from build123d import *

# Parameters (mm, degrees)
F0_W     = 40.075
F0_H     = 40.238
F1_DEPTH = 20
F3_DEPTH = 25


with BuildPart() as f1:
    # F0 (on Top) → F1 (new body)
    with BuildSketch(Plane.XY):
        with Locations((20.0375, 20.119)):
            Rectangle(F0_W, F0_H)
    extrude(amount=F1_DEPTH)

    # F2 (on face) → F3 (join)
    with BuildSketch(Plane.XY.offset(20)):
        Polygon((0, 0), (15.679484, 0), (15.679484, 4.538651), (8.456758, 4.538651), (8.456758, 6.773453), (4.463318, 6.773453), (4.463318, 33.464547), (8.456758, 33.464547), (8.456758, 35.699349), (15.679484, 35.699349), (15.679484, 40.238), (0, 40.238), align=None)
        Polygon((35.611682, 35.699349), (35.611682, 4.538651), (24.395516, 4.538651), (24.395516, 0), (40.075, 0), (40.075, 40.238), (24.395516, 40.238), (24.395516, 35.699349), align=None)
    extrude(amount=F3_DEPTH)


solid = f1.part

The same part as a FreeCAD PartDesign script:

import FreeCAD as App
import Part
import Sketcher
Q = App.Units.Quantity


def add_polygon(sketch, points):
    """Adds a closed chain of lines whose ends are joined by coincident constraints."""
    first, n = sketch.GeometryCount, len(points)
    for a, b in zip(points, points[1:] + points[:1]):
        sketch.addGeometry(Part.LineSegment(App.Vector(*a, 0), App.Vector(*b, 0)), False)
    for i in range(n):
        sketch.addConstraint(Sketcher.Constraint("Coincident", first + i, 2, first + (i + 1) % n, 1))

doc = App.newDocument("Part")
body = doc.addObject("PartDesign::Body", "Body")

# Sketch on XY plane
sketch1 = body.newObject("Sketcher::SketchObject", "Sketch")
sketch1.AttachmentSupport = (doc.getObject("XY_Plane"), [""])
sketch1.MapMode = "FlatFace"
add_polygon(sketch1, [(0, 40), (0, 0), (40, 0), (40, 40)])  # lines 0-3
sketch1.addConstraint(Sketcher.Constraint("Vertical", 0))
sketch1.addConstraint(Sketcher.Constraint("Horizontal", 1))
sketch1.addConstraint(Sketcher.Constraint("Vertical", 2))
sketch1.addConstraint(Sketcher.Constraint("Horizontal", 3))
sketch1.addConstraint(Sketcher.Constraint("Coincident", 0, 2, -1, 1))
sketch1.addConstraint(Sketcher.Constraint("DistanceX", 1, 1, 1, 2, Q("40.075 mm")))
sketch1.addConstraint(Sketcher.Constraint("DistanceY", 0, 2, 0, 1, Q("40.238 mm")))
pad1 = body.newObject("PartDesign::Pad", "Pad")
pad1.Profile = sketch1
pad1.Length = 20

# Sketch on XY plane
sketch2 = body.newObject("Sketcher::SketchObject", "Sketch001")
sketch2.AttachmentSupport = (doc.getObject("XY_Plane"), [""])
sketch2.MapMode = "FlatFace"
sketch2.AttachmentOffset = App.Placement(App.Vector(0, 0, 20), App.Rotation())
add_polygon(sketch2, [(0, 0), (15.7, 0), (15.7, 4.5), (8.5, 4.5), (8.5, 6.8), (4.5, 6.8), (4.5, 33.5), (8.5, 33.5), (8.5, 35.7), (15.7, 35.7), (15.7, 40.2), (0, 40.2)])  # lines 0-11
add_polygon(sketch2, [(35.6, 35.7), (35.6, 4.5), (24.4, 4.5), (24.4, 0), (40.1, 0), (40.1, 40.2), (24.4, 40.2), (24.4, 35.7)])  # lines 12-19
sketch2.addConstraint(Sketcher.Constraint("Horizontal", 0))
sketch2.addConstraint(Sketcher.Constraint("Vertical", 1))
sketch2.addConstraint(Sketcher.Constraint("Horizontal", 2))
sketch2.addConstraint(Sketcher.Constraint("Vertical", 3))
sketch2.addConstraint(Sketcher.Constraint("Horizontal", 4))
sketch2.addConstraint(Sketcher.Constraint("Vertical", 5))
sketch2.addConstraint(Sketcher.Constraint("Horizontal", 6))
sketch2.addConstraint(Sketcher.Constraint("Vertical", 7))
sketch2.addConstraint(Sketcher.Constraint("Horizontal", 8))
sketch2.addConstraint(Sketcher.Constraint("Vertical", 9))
sketch2.addConstraint(Sketcher.Constraint("Horizontal", 10))
sketch2.addConstraint(Sketcher.Constraint("Vertical", 11))
sketch2.addConstraint(Sketcher.Constraint("Vertical", 12))
sketch2.addConstraint(Sketcher.Constraint("Horizontal", 13))
sketch2.addConstraint(Sketcher.Constraint("Vertical", 14))
sketch2.addConstraint(Sketcher.Constraint("Horizontal", 15))
sketch2.addConstraint(Sketcher.Constraint("Vertical", 16))
sketch2.addConstraint(Sketcher.Constraint("Horizontal", 17))
sketch2.addConstraint(Sketcher.Constraint("Vertical", 18))
sketch2.addConstraint(Sketcher.Constraint("Horizontal", 19))
sketch2.addConstraint(Sketcher.Constraint("Coincident", 11, 2, -1, 1))
sketch2.addConstraint(Sketcher.Constraint("PointOnObject", 14, 2, -1))
sketch2.addConstraint(Sketcher.Constraint("Horizontal", 2, 2, 12, 2))
sketch2.addConstraint(Sketcher.Constraint("Horizontal", 10, 2, 16, 2))
sketch2.addConstraint(Sketcher.Constraint("Horizontal", 8, 2, 18, 2))
sketch2.addConstraint(Sketcher.Constraint("Vertical", 3, 2, 6, 2))
sketch2.addConstraint(Sketcher.Constraint("Vertical", 1, 2, 8, 2))
sketch2.addConstraint(Sketcher.Constraint("Vertical", 14, 2, 17, 2))
sketch2.addConstraint(Sketcher.Constraint("Equal", 10, 15))
sketch2.addConstraint(Sketcher.Constraint("Equal", 3, 7))
sketch2.addConstraint(Sketcher.Constraint("Equal", 1, 9))
sketch2.addConstraint(Sketcher.Constraint("DistanceY", 11, 2, 11, 1, Q("40.238 mm")))
sketch2.addConstraint(Sketcher.Constraint("DistanceY", 7, 1, 7, 2, Q("2.234802 mm")))
sketch2.addConstraint(Sketcher.Constraint("DistanceX", -1, 1, 15, 2, Q("40.075 mm")))
sketch2.addConstraint(Sketcher.Constraint("DistanceX", 4, 2, 4, 1, Q("3.99344 mm")))
sketch2.addConstraint(Sketcher.Constraint("DistanceY", 1, 1, 1, 2, Q("4.538651 mm")))
sketch2.addConstraint(Sketcher.Constraint("DistanceX", 0, 1, 0, 2, Q("15.679484 mm")))
sketch2.addConstraint(Sketcher.Constraint("DistanceX", 2, 2, 2, 1, Q("7.222726 mm")))
sketch2.addConstraint(Sketcher.Constraint("DistanceX", 13, 2, 13, 1, Q("11.216166 mm")))
pad2 = body.newObject("PartDesign::Pad", "Pad001")
pad2.Profile = sketch2
pad2.Length = 25

doc.recompute()
